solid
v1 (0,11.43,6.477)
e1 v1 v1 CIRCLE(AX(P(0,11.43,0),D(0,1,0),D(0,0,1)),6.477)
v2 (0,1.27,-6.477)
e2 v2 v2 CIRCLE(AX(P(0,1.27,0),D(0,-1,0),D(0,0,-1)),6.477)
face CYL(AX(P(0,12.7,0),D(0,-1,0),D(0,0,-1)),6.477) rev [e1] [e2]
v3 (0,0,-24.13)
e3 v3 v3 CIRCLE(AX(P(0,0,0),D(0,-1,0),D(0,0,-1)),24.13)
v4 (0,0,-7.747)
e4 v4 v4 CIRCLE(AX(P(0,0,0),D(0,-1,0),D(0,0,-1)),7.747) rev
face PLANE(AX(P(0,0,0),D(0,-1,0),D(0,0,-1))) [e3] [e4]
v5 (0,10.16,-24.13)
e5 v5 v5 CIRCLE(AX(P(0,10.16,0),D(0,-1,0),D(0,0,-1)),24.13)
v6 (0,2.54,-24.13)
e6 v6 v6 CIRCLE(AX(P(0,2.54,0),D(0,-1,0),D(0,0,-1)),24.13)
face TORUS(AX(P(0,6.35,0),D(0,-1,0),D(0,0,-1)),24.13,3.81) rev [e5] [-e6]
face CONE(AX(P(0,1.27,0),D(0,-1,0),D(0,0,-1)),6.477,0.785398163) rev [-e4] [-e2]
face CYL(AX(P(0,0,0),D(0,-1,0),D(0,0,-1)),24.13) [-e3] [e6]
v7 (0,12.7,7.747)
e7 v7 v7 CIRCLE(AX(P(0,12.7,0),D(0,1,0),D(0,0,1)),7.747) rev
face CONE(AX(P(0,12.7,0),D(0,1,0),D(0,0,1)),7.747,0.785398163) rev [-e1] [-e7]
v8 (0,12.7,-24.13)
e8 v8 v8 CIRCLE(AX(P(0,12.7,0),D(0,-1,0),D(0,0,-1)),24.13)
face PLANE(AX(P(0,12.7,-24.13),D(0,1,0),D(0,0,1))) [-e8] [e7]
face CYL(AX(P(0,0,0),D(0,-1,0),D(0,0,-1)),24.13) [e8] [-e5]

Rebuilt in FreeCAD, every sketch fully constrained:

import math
import FreeCAD as App
import Part
import Sketcher

V = App.Vector
Q = App.Units.Quantity


def edges_at(feature, points):
    """Names of the edges that pass closest to the given points."""
    edges = feature.Shape.Edges
    near = lambda p: min(range(len(edges)), key=lambda i: edges[i].distToShape(Part.Vertex(*p))[0])
    return sorted({f"Edge{near(p) + 1}" for p in points})

doc = App.newDocument("Part")
params = doc.addObject("Spreadsheet::Sheet", "Params")
for row, (alias, value) in enumerate([
    ("sketch1_radius", "0.15 in"),
    ("sketch1_width", "0.1 in"),
    ("sketch1_height", "0.95 in"),
    ("revolution_angle", "360 deg"),
    ("sketch2_diameter", "0.51 in"),
    ("chamfer_size", "0.05 in"),
], start=1):
    params.set(f"A{row}", alias)
    params.set(f"B{row}", "=" + value)
    params.setAlias(f"B{row}", alias)

body = doc.addObject("PartDesign::Body", "Body")

# Sketch on YZ plane
sketch1 = doc.addObject("Sketcher::SketchObject", "Sketch")
body.addObject(sketch1)
sketch1.AttachmentSupport = (doc.YZ_Plane, [""])
sketch1.MapMode = "FlatFace"
sketch1.addGeometry(Part.LineSegment(V(0, 0, 0), V(0, -24.13, 0)), False)
sketch1.addGeometry(Part.LineSegment(V(0, -24.13, 0), V(2.54, -24.13, 0)), False)
sketch1.addGeometry(Part.ArcOfCircle(Part.Circle(V(6.35, -24.13, 0), V(0, 0, 1), 3.81), math.radians(0), math.radians(180)), False)
sketch1.addGeometry(Part.LineSegment(V(10.16, -24.13, 0), V(12.7, -24.13, 0)), False)
sketch1.addGeometry(Part.LineSegment(V(12.7, -24.13, 0), V(12.7, 0, 0)), False)
sketch1.addGeometry(Part.LineSegment(V(12.7, 0, 0), V(0, 0, 0)), False)
sketch1.addConstraint(Sketcher.Constraint("Coincident", 0, 2, 1, 1))
sketch1.addConstraint(Sketcher.Constraint("Coincident", 1, 2, 2, 2))
sketch1.addConstraint(Sketcher.Constraint("Coincident", 2, 1, 3, 1))
sketch1.addConstraint(Sketcher.Constraint("Coincident", 3, 2, 4, 1))
sketch1.addConstraint(Sketcher.Constraint("Coincident", 4, 2, 5, 1))
sketch1.addConstraint(Sketcher.Constraint("Coincident", 5, 2, 0, 1))
sketch1.addConstraint(Sketcher.Constraint("Vertical", 0))
sketch1.addConstraint(Sketcher.Constraint("Horizontal", 1))
sketch1.addConstraint(Sketcher.Constraint("Horizontal", 3))
sketch1.addConstraint(Sketcher.Constraint("Vertical", 4))
sketch1.addConstraint(Sketcher.Constraint("Horizontal", 5))
sketch1.addConstraint(Sketcher.Constraint("Coincident", 5, 2, -1, 1))
sketch1.addConstraint(Sketcher.Constraint("Horizontal", 2, 3, 0, 2))
sketch1.addConstraint(Sketcher.Constraint("Horizontal", 1, 2, 2, 1))
sketch1.addConstraint(Sketcher.Constraint("Equal", 1, 3))
sketch1.addConstraint(Sketcher.Constraint("Radius", 2, Q("0.15 in")))
sketch1.addConstraint(Sketcher.Constraint("DistanceX", 1, 1, 1, 2, Q("0.1 in")))
sketch1.addConstraint(Sketcher.Constraint("DistanceY", 0, 2, 0, 1, Q("0.95 in")))
sketch1.setExpression("Constraints[15]", "Params.sketch1_radius")
sketch1.setExpression("Constraints[16]", "Params.sketch1_width")
sketch1.setExpression("Constraints[17]", "Params.sketch1_height")
revolution = doc.addObject("PartDesign::Revolution", "Revolution")
body.addObject(revolution)
revolution.Profile = sketch1
revolution.ReferenceAxis = (sketch1, ["H_Axis"])
revolution.setExpression("Angle", "Params.revolution_angle")

# Sketch on XZ plane
sketch2 = doc.addObject("Sketcher::SketchObject", "Sketch001")
body.addObject(sketch2)
sketch2.AttachmentSupport = (doc.XZ_Plane, [""])
sketch2.MapMode = "FlatFace"
sketch2.addGeometry(Part.Circle(V(0, 0, 0), V(0, 0, 1), 6.477), False)
sketch2.addConstraint(Sketcher.Constraint("Coincident", 0, 3, -1, 1))
sketch2.addConstraint(Sketcher.Constraint("Diameter", 0, Q("0.51 in")))
sketch2.setExpression("Constraints[1]", "Params.sketch2_diameter")
pocket1 = doc.addObject("PartDesign::Pocket", "Pocket")
body.addObject(pocket1)
pocket1.Profile = sketch2
pocket1.Type = "ThroughAll"
doc.recompute()

chamfer = doc.addObject("PartDesign::Chamfer", "Chamfer")
body.addObject(chamfer)
chamfer.Base = (pocket1, edges_at(pocket1, [(0, 12.7, 6.477), (0, 0, 6.477)]))
chamfer.setExpression("Size", "Params.chamfer_size")

doc.recompute()
